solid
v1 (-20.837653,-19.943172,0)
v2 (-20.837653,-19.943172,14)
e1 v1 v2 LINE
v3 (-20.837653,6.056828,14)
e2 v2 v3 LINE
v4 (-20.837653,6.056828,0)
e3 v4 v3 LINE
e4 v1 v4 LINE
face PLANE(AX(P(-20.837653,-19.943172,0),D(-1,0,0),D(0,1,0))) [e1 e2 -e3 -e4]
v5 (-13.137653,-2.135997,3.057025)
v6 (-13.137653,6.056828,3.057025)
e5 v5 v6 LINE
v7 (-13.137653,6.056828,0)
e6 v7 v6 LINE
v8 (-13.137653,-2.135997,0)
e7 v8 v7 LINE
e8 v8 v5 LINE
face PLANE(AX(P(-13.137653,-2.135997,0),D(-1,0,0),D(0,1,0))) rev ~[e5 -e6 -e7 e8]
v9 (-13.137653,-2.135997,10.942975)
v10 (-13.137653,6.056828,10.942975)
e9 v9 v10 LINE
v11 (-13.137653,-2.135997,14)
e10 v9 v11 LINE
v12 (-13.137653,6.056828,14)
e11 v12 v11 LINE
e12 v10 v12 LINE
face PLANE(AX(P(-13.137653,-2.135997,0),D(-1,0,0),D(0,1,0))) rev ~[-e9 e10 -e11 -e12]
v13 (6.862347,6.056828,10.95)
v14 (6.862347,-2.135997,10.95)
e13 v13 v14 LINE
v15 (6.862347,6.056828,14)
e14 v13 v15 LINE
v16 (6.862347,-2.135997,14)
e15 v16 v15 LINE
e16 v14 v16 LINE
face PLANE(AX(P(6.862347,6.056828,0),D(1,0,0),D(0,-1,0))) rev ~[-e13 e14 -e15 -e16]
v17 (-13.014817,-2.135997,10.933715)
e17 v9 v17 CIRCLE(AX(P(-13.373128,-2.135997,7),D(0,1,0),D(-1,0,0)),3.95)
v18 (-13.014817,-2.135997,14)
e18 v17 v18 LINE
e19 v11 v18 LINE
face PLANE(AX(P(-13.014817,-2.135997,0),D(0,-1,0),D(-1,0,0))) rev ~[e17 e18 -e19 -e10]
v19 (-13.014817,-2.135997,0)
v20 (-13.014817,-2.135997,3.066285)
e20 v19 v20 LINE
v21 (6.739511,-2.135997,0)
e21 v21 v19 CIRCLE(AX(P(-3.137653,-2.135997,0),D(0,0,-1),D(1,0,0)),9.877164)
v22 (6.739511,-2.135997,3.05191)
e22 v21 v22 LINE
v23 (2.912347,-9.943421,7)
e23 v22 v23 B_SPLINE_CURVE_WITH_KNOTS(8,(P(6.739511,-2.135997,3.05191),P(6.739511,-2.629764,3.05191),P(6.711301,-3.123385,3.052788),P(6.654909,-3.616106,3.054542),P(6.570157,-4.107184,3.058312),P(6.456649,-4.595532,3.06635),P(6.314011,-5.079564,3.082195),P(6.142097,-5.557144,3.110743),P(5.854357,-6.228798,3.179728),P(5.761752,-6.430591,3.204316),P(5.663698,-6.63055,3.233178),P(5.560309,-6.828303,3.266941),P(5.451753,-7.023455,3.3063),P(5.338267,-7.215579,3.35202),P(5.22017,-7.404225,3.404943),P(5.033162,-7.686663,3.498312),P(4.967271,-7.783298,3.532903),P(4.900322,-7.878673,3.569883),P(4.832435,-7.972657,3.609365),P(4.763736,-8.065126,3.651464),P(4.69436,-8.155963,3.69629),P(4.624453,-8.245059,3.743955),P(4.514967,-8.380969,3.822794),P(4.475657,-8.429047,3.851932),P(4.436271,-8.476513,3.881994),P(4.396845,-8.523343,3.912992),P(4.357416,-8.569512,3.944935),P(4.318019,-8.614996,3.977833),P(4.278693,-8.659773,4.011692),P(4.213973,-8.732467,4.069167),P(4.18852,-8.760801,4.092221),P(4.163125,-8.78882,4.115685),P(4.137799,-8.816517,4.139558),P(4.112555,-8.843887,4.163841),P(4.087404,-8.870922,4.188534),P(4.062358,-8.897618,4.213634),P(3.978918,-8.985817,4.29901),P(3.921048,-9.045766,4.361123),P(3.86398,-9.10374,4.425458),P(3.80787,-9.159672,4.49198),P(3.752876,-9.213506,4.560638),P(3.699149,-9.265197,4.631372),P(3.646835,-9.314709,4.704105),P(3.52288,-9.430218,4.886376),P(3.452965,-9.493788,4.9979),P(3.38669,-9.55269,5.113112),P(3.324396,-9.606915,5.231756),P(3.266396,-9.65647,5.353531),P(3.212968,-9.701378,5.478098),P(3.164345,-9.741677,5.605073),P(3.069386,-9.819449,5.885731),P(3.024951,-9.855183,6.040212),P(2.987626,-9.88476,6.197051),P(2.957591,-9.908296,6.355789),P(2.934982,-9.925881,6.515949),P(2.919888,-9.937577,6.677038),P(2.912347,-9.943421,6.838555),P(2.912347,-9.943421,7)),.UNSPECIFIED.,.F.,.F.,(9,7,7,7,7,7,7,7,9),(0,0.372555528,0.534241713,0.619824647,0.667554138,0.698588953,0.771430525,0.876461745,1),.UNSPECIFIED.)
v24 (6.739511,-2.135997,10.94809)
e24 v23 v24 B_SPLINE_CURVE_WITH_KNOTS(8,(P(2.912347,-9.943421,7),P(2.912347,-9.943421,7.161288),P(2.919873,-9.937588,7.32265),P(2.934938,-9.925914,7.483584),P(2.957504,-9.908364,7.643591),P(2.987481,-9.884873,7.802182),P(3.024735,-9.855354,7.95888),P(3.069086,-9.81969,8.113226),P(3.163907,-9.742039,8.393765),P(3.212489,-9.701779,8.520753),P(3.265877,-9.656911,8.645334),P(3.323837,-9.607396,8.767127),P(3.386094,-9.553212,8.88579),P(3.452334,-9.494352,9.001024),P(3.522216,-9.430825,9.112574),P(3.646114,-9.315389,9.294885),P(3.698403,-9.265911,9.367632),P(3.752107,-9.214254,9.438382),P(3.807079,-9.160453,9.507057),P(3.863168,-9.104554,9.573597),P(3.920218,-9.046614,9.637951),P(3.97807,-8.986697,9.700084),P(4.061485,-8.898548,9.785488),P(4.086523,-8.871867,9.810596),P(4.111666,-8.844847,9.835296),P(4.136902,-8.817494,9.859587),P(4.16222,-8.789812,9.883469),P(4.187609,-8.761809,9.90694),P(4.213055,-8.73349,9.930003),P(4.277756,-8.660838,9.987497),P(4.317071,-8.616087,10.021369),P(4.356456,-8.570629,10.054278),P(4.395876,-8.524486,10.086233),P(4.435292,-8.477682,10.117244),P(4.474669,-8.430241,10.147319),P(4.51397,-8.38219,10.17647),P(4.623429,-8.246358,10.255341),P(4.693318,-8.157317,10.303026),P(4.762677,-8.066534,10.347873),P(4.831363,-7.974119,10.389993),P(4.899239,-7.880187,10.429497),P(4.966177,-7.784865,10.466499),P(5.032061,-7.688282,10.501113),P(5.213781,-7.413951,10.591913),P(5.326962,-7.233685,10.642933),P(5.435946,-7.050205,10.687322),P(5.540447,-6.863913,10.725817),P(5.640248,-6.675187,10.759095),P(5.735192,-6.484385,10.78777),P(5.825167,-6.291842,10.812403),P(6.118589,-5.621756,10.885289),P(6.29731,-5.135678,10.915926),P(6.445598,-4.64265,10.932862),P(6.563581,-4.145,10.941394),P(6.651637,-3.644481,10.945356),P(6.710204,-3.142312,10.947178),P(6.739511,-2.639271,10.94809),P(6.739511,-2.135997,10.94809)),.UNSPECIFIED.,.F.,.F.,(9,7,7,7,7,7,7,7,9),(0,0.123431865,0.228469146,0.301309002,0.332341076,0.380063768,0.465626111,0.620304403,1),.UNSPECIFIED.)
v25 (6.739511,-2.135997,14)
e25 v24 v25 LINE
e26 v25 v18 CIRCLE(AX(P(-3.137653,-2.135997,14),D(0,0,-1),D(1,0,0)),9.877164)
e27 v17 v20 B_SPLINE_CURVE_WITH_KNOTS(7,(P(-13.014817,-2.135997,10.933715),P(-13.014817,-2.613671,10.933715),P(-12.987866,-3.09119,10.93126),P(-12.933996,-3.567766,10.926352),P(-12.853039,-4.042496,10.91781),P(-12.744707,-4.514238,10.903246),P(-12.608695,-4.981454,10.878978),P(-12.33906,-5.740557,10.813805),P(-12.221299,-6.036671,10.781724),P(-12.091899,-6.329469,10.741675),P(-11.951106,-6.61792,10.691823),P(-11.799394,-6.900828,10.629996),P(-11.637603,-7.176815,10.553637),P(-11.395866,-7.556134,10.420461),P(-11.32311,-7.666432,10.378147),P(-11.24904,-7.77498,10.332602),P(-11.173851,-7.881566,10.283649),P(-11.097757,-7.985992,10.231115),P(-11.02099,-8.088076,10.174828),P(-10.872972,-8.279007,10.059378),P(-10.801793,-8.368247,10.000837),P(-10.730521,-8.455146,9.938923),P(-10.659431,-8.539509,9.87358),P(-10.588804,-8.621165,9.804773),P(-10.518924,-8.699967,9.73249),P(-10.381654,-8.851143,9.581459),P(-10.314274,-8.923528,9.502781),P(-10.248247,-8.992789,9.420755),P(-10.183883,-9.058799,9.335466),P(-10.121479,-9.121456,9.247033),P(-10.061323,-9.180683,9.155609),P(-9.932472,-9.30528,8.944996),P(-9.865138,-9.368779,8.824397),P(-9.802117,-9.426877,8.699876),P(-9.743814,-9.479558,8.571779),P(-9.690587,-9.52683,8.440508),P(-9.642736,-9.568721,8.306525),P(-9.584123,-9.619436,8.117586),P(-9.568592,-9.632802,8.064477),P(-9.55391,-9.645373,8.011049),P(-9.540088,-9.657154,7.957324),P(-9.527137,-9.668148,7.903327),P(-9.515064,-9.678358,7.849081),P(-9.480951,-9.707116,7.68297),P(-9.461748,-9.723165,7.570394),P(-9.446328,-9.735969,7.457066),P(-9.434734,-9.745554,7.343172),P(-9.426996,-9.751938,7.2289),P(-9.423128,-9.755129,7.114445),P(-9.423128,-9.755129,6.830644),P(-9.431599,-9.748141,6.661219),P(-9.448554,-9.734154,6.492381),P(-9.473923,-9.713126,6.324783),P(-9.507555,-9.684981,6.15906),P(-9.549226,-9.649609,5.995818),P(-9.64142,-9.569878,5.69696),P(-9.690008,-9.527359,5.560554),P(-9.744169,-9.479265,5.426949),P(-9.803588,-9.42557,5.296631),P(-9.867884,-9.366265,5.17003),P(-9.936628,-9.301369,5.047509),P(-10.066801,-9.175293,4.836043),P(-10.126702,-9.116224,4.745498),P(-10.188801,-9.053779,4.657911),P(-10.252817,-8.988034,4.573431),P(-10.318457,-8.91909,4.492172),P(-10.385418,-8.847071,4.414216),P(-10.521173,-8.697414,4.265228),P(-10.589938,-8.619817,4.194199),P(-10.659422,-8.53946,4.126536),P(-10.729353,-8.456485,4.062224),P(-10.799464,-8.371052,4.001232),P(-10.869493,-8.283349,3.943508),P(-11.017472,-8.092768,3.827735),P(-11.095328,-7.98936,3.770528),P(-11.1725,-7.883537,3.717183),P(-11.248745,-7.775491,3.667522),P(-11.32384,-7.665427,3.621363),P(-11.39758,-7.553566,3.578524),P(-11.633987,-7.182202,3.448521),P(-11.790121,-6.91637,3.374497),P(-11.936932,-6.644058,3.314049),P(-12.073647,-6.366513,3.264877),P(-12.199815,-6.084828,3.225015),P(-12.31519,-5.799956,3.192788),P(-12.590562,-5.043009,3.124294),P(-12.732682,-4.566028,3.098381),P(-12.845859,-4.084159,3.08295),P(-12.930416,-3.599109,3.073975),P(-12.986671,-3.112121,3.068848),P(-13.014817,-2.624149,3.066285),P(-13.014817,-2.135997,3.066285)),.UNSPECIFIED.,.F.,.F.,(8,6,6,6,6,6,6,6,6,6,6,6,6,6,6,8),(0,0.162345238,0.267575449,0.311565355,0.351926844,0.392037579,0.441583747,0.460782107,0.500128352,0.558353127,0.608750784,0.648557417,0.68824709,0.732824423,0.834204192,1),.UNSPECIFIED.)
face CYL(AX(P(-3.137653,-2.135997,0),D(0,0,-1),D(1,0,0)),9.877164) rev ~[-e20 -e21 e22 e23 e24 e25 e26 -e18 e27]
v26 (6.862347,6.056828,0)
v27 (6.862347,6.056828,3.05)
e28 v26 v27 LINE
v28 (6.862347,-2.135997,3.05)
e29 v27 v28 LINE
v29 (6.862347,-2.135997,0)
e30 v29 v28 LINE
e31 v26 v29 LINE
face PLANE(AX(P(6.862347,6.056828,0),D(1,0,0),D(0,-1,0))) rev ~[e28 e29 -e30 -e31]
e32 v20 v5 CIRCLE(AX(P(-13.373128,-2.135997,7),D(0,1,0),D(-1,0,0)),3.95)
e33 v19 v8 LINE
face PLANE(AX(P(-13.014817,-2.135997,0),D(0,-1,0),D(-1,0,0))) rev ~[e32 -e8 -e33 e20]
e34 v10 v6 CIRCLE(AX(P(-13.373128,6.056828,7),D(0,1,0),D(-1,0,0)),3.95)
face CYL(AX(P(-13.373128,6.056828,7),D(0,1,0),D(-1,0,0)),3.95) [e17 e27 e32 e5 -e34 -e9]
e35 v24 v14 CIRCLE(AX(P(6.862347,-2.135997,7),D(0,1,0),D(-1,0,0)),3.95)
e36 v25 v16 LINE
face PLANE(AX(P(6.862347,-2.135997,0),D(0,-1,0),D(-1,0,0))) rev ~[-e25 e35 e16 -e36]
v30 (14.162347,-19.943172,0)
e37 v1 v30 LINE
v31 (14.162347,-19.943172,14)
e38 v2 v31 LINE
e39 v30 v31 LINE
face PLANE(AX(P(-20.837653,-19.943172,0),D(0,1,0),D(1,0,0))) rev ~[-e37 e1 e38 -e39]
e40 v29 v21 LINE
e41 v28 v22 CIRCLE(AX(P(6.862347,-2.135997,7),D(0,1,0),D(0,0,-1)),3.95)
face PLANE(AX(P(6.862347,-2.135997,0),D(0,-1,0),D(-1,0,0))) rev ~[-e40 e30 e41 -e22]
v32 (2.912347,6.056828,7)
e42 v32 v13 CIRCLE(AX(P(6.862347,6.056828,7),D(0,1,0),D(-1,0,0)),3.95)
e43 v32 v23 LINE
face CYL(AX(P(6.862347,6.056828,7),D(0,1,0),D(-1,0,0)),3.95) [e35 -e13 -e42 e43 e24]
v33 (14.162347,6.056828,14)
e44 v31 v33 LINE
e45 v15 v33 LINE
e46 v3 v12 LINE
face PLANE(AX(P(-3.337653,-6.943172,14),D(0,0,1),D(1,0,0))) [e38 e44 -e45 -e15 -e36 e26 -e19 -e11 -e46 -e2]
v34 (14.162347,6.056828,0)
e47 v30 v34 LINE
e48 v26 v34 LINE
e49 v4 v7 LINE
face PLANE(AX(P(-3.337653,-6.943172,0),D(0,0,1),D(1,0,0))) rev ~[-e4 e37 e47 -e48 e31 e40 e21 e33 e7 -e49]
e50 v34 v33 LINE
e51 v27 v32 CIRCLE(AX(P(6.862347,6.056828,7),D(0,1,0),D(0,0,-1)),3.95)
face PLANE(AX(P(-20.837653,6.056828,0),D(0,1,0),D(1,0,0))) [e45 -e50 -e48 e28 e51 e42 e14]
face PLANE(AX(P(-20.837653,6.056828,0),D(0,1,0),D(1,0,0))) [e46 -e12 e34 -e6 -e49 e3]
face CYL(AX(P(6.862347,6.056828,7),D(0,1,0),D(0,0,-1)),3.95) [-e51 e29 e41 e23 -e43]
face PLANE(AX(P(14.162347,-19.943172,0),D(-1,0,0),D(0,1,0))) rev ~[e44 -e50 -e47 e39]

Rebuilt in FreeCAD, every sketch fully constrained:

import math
import FreeCAD as App
import Part
import Sketcher
from FreeCAD import Vector
Q = App.Units.Quantity


def add_polygon(sketch, points):
    """Adds a closed chain of lines whose ends are joined by coincident constraints."""
    first, n = sketch.GeometryCount, len(points)
    for a, b in zip(points, points[1:] + points[:1]):
        sketch.addGeometry(Part.LineSegment(App.Vector(*a, 0), App.Vector(*b, 0)), False)
    for i in range(n):
        sketch.addConstraint(Sketcher.Constraint("Coincident", first + i, 2, first + (i + 1) % n, 1))

doc = App.newDocument("Part")
body = doc.addObject("PartDesign::Body", "Body")

# Sketch on XY plane
sketch1 = body.newObject("Sketcher::SketchObject", "Sketch")
sketch1.AttachmentSupport = (doc.getObject("XY_Plane"), [""])
sketch1.MapMode = "FlatFace"
add_polygon(sketch1, [(-21, 6), (-21, -20), (14, -20), (14, 6)])  # lines 0-3
sketch1.addConstraint([
    Sketcher.Constraint("Vertical", 0),
    Sketcher.Constraint("Horizontal", 1),
    Sketcher.Constraint("Vertical", 2),
    Sketcher.Constraint("Horizontal", 3),
    Sketcher.Constraint("DistanceX", 1, 1, 1, 2, Q("35 mm")),
    Sketcher.Constraint("DistanceY", 0, 2, 0, 1, Q("26 mm")),
    Sketcher.Constraint("DistanceY", 0, 2, -1, 1, Q("19.943172 mm")),
    Sketcher.Constraint("DistanceX", 0, 2, -1, 1, Q("20.837653 mm")),
])
pad1 = body.newObject("PartDesign::Pad", "Pad")
pad1.Profile = sketch1
pad1.Length = 14

# Sketch on XY plane
sketch2 = body.newObject("Sketcher::SketchObject", "Sketch001")
sketch2.AttachmentSupport = (doc.getObject("XY_Plane"), [""])
sketch2.MapMode = "FlatFace"
sketch2.addGeometry([
    Part.LineSegment(Vector(-13.14, -2.14, 0), Vector(-13.14, 6.06, 0)),  # 0
    Part.LineSegment(Vector(-13.14, 6.06, 0), Vector(6.86, 6.06, 0)),  # 1
    Part.LineSegment(Vector(6.86, 6.06, 0), Vector(6.86, -2.14, 0)),  # 2
    Part.LineSegment(Vector(6.86, -2.14, 0), Vector(6.74, -2.14, 0)),  # 3
    Part.ArcOfCircle(Part.Circle(Vector(-3.14, -2.14, 0), Vector(0, 0, 1), 9.88), math.radians(180), math.radians(360)),  # 4
    Part.LineSegment(Vector(-13.01, -2.14, 0), Vector(-13.14, -2.14, 0)),  # 5
], False)
sketch2.addConstraint([
    Sketcher.Constraint("Coincident", 0, 2, 1, 1),
    Sketcher.Constraint("Coincident", 1, 2, 2, 1),
    Sketcher.Constraint("Coincident", 2, 2, 3, 1),
    Sketcher.Constraint("Coincident", 3, 2, 4, 2),
    Sketcher.Constraint("Coincident", 4, 1, 5, 1),
    Sketcher.Constraint("Coincident", 5, 2, 0, 1),
    Sketcher.Constraint("Vertical", 0),
    Sketcher.Constraint("Horizontal", 1),
    Sketcher.Constraint("Vertical", 2),
    Sketcher.Constraint("Horizontal", 3),
    Sketcher.Constraint("Horizontal", 5),
    Sketcher.Constraint("Horizontal", 4, 3, 2, 2),
    Sketcher.Constraint("Horizontal", 3, 2, 4, 1),
    Sketcher.Constraint("Equal", 3, 5),
    Sketcher.Constraint("DistanceX", 1, 1, 1, 2, Q("20 mm")),
    Sketcher.Constraint("Radius", 4, Q("9.877164 mm")),
    Sketcher.Constraint("DistanceY", 0, 1, 0, 2, Q("8.192825 mm")),
    Sketcher.Constraint("DistanceY", -1, 1, 0, 2, Q("6.056828 mm")),
    Sketcher.Constraint("DistanceX", -1, 1, 3, 2, Q("6.739511 mm")),
])
pocket1 = body.newObject("PartDesign::Pocket", "Pocket")
pocket1.Profile = sketch2
pocket1.Length = 32.63313
pocket1.Reversed = True

# Sketch on XZ plane
sketch3 = body.newObject("Sketcher::SketchObject", "Sketch002")
sketch3.AttachmentSupport = (doc.getObject("XZ_Plane"), [""])
sketch3.MapMode = "FlatFace"
sketch3.AttachmentOffset = App.Placement(Vector(0, 0, -6.056828), App.Rotation())
sketch3.addGeometry([
    Part.Circle(Vector(-13.4, 7, 0), Vector(0, 0, 1), 4),
    Part.ArcOfCircle(Part.Circle(Vector(6.9, 7, 0), Vector(0, 0, 1), 4), math.radians(180), math.radians(270)),
    Part.ArcOfCircle(Part.Circle(Vector(6.9, 7, 0), Vector(0, 0, 1), 4), math.radians(90), math.radians(180)),
    Part.LineSegment(Vector(6.9, 10.9, 0), Vector(6.9, 3, 0)),
], False)
sketch3.addConstraint([
    Sketcher.Constraint("Tangent", 1, 1, 2, 2),
    Sketcher.Constraint("Coincident", 2, 1, 3, 1),
    Sketcher.Constraint("Coincident", 3, 2, 1, 2),
    Sketcher.Constraint("Vertical", 3),
    Sketcher.Constraint("Equal", 0, 1),
    Sketcher.Constraint("Equal", 1, 2),
    Sketcher.Constraint("Horizontal", 0, 3, 1, 3),
    Sketcher.Constraint("Horizontal", 2, 3, 1, 1),
    Sketcher.Constraint("Vertical", 1, 3, 2, 1),
    Sketcher.Constraint("Diameter", 0, Q("7.9 mm")),
    Sketcher.Constraint("DistanceY", -1, 1, 0, 3, Q("7 mm")),
    Sketcher.Constraint("DistanceX", 0, 3, -1, 1, Q("13.373128 mm")),
    Sketcher.Constraint("DistanceX", -1, 1, 1, 3, Q("6.862347 mm")),
])
pad2 = body.newObject("PartDesign::Pad", "Pad001")
pad2.Profile = sketch3
pad2.Length = 25

doc.recompute()
